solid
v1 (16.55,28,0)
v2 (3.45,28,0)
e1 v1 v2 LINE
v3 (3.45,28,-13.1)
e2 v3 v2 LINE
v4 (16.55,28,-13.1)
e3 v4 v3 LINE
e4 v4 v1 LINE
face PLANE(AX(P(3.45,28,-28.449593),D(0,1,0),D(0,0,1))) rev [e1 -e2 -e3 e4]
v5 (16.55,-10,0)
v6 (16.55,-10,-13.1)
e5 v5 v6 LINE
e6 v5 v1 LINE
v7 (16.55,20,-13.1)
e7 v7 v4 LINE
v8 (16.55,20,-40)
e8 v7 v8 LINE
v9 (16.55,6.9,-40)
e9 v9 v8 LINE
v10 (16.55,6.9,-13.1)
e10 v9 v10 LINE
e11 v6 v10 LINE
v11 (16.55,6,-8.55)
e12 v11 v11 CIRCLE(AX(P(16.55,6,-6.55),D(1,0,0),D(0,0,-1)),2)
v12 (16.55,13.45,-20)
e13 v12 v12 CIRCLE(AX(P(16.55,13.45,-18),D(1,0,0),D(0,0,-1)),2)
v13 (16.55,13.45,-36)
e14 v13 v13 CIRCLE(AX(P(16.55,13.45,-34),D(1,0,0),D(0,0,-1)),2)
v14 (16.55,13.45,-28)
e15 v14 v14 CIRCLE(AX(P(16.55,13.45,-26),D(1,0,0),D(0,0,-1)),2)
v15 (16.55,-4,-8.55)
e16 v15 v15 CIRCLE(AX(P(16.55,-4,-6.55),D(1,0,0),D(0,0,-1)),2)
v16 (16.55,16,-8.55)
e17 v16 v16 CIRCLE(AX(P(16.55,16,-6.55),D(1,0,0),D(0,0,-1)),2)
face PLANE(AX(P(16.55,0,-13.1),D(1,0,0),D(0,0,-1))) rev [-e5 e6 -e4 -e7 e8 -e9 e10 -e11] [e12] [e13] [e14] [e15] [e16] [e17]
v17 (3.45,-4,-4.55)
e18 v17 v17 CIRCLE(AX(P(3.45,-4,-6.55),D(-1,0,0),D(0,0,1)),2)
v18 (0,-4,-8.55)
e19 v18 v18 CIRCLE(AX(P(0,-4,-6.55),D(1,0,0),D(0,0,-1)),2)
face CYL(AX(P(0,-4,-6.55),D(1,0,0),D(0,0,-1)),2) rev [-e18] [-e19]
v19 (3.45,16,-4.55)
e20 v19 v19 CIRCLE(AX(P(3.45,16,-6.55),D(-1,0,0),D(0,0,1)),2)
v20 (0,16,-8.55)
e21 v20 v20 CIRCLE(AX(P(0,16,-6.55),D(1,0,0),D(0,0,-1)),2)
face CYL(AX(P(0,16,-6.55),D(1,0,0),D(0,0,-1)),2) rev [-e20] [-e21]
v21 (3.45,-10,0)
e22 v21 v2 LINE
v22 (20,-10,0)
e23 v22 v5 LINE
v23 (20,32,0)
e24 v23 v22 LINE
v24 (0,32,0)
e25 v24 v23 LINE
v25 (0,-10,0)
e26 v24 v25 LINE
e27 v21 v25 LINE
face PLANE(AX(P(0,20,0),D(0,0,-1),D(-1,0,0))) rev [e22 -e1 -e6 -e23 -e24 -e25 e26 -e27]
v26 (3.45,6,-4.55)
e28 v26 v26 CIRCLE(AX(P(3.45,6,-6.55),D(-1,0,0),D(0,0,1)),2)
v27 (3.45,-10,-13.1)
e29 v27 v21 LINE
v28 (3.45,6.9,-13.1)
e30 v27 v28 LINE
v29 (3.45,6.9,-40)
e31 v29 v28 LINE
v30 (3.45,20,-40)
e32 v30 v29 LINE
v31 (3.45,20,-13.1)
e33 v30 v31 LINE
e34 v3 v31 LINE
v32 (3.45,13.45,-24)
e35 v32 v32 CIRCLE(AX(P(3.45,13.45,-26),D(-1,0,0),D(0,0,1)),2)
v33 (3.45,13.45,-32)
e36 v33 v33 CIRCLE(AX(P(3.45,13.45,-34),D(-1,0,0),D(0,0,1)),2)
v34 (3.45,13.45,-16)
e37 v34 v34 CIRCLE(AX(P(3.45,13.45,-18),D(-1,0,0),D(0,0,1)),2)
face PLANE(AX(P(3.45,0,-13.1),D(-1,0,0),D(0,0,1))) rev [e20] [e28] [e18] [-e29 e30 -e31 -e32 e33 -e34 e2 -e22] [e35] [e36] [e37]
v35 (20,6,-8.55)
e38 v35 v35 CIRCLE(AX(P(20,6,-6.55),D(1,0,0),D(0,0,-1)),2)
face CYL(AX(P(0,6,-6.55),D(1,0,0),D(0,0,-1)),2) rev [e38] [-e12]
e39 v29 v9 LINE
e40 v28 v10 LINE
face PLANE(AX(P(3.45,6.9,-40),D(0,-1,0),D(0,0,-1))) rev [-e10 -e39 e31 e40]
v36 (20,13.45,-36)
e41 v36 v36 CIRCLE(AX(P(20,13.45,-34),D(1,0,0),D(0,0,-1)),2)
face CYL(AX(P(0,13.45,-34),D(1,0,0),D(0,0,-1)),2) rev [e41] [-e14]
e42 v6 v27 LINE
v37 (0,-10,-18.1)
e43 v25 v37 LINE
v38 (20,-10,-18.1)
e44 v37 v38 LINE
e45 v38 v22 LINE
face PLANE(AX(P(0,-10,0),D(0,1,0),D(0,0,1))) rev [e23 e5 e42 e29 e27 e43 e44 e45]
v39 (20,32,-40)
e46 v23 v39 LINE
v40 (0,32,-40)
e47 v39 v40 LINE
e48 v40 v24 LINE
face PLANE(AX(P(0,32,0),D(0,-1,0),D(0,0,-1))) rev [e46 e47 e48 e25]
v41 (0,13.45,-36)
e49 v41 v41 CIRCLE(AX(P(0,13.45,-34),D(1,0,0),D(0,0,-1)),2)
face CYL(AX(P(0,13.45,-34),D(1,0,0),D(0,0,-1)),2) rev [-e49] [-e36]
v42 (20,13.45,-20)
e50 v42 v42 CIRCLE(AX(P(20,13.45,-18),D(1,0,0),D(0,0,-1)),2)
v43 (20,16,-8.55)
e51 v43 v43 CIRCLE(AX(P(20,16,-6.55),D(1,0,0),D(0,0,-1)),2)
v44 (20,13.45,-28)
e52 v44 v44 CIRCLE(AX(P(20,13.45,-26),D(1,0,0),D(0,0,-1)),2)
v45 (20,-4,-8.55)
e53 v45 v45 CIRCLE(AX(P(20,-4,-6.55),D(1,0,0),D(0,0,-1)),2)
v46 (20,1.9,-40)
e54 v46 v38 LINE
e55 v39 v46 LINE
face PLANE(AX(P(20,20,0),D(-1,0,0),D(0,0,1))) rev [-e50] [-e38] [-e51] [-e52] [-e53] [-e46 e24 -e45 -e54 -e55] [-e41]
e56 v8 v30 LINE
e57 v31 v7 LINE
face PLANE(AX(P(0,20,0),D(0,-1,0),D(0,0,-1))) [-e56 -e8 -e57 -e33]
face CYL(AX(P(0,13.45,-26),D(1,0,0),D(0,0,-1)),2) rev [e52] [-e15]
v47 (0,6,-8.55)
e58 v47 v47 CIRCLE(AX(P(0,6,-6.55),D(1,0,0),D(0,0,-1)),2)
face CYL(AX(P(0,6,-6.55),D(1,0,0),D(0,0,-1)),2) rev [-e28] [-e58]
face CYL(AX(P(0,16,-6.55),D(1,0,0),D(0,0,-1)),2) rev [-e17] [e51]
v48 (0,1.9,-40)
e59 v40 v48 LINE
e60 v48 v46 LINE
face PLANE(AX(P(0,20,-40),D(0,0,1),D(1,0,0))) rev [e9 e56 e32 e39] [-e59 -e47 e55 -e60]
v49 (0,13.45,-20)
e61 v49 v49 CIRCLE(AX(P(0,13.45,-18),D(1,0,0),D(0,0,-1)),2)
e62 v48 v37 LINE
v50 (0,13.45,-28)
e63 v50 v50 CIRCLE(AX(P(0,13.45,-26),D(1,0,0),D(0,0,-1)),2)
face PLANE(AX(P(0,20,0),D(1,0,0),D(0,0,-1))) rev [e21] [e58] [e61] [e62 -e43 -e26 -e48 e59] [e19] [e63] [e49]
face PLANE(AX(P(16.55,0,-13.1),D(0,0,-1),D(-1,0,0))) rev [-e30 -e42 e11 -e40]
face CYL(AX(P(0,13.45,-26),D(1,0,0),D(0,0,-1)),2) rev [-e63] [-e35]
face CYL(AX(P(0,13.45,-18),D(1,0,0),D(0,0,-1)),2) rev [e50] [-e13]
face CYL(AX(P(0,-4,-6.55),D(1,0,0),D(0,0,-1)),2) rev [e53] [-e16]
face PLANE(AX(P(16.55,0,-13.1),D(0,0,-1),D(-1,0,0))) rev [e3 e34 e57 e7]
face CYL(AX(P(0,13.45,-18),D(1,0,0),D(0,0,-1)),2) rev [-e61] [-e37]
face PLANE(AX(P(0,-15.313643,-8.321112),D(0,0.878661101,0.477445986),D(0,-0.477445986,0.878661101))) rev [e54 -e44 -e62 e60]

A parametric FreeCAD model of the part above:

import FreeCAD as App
import Part
import Sketcher

V = App.Vector

doc = App.newDocument("Part")
params = doc.addObject("Spreadsheet::Sheet", "Params")
for row, (alias, value) in enumerate([
    ("sketch1_width", "20 mm"),
    ("sketch1_height", "40 mm"),
    ("pad1_length", "20 mm"),
    ("sketch2_width", "13.1 mm"),
    ("sketch3_width", "13.1 mm"),
    ("sketch4_width", "20 mm"),
    ("sketch4_height", "40 mm"),
    ("sketch4_width2", "13.1 mm"),
    ("pad2_length", "10 mm"),
    ("sketch5_width", "20 mm"),
    ("sketch5_height", "40 mm"),
    ("pad3_length", "12 mm"),
    ("sketch6_height", "8 mm"),
    ("sketch6_width", "13.1 mm"),
    ("pocket3_length", "13.1 mm"),
    ("sketch7_diameter", "4 mm"),
    ("sketch8_diameter", "4 mm"),
    ("sketch9_width", "11.9 mm"),
    ("sketch9_height", "21.9 mm"),
], start=1):
    params.set(f"A{row}", alias)
    params.set(f"B{row}", "=" + value)
    params.setAlias(f"B{row}", alias)

body = doc.addObject("PartDesign::Body", "Body")

# Sketch on XZ plane
sketch1 = doc.addObject("Sketcher::SketchObject", "Sketch")
body.addObject(sketch1)
sketch1.AttachmentSupport = (doc.XZ_Plane, [""])
sketch1.MapMode = "FlatFace"
sketch1.addGeometry([
    Part.LineSegment(V(0, -40, 0), V(0, 0, 0)),
    Part.LineSegment(V(0, 0, 0), V(20, 0, 0)),
    Part.LineSegment(V(20, 0, 0), V(20, -40, 0)),
    Part.LineSegment(V(20, -40, 0), V(0, -40, 0)),
], False)
sketch1.addConstraint([
    Sketcher.Constraint("Coincident", 0, 2, 1, 1),
    Sketcher.Constraint("Coincident", 1, 2, 2, 1),
    Sketcher.Constraint("Coincident", 2, 2, 3, 1),
    Sketcher.Constraint("Coincident", 3, 2, 0, 1),
    Sketcher.Constraint("Vertical", 0),
    Sketcher.Constraint("Horizontal", 1),
    Sketcher.Constraint("Vertical", 2),
    Sketcher.Constraint("Horizontal", 3),
    Sketcher.Constraint("Coincident", 0, 2, -1, 1),
    Sketcher.Constraint("DistanceX", 1, 1, 1, 2, 20.0),
    Sketcher.Constraint("DistanceY", 0, 1, 0, 2, 40.0),
])
sketch1.setExpression("Constraints[9]", "Params.sketch1_width")
sketch1.setExpression("Constraints[10]", "Params.sketch1_height")
pad1 = doc.addObject("PartDesign::Pad", "Pad")
body.addObject(pad1)
pad1.Profile = sketch1
pad1.setExpression("Length", "Params.pad1_length")
pad1.Reversed = True

# Sketch on XZ plane
sketch2 = doc.addObject("Sketcher::SketchObject", "Sketch001")
body.addObject(sketch2)
sketch2.AttachmentSupport = (doc.XZ_Plane, [""])
sketch2.MapMode = "FlatFace"
sketch2.AttachmentOffset = App.Placement(V(0, 0, -20), App.Rotation())
sketch2.addGeometry([
    Part.LineSegment(V(3.45, -13.1, 0), V(3.45, 0, 0)),
    Part.LineSegment(V(3.45, 0, 0), V(16.55, 0, 0)),
    Part.LineSegment(V(16.55, 0, 0), V(16.55, -13.1, 0)),
    Part.LineSegment(V(16.55, -13.1, 0), V(3.45, -13.1, 0)),
], False)
sketch2.addConstraint([
    Sketcher.Constraint("Coincident", 0, 2, 1, 1),
    Sketcher.Constraint("Coincident", 1, 2, 2, 1),
    Sketcher.Constraint("Coincident", 2, 2, 3, 1),
    Sketcher.Constraint("Coincident", 3, 2, 0, 1),
    Sketcher.Constraint("Vertical", 0),
    Sketcher.Constraint("Horizontal", 1),
    Sketcher.Constraint("Vertical", 2),
    Sketcher.Constraint("Horizontal", 3),
    Sketcher.Constraint("PointOnObject", 0, 2, -1),
    Sketcher.Constraint("Equal", 3, 0),
    Sketcher.Constraint("DistanceX", 1, 1, 1, 2, 13.1),
    Sketcher.Constraint("DistanceX", -1, 1, 0, 2, 3.45),
])
sketch2.setExpression("Constraints[10]", "Params.sketch2_width")
pocket1 = doc.addObject("PartDesign::Pocket", "Pocket")
body.addObject(pocket1)
pocket1.Profile = sketch2
pocket1.Type = "ThroughAll"
pocket1.Reversed = True

# Sketch on XY plane
sketch3 = doc.addObject("Sketcher::SketchObject", "Sketch002")
body.addObject(sketch3)
sketch3.AttachmentSupport = (doc.XY_Plane, [""])
sketch3.MapMode = "FlatFace"
sketch3.AttachmentOffset = App.Placement(V(0, 0, -13.1), App.Rotation())
sketch3.addGeometry([
    Part.LineSegment(V(3.45, 20, 0), V(3.45, 6.9, 0)),
    Part.LineSegment(V(3.45, 6.9, 0), V(16.55, 6.9, 0)),
    Part.LineSegment(V(16.55, 6.9, 0), V(16.55, 20, 0)),
    Part.LineSegment(V(16.55, 20, 0), V(3.45, 20, 0)),
], False)
sketch3.addConstraint([
    Sketcher.Constraint("Coincident", 0, 2, 1, 1),
    Sketcher.Constraint("Coincident", 1, 2, 2, 1),
    Sketcher.Constraint("Coincident", 2, 2, 3, 1),
    Sketcher.Constraint("Coincident", 3, 2, 0, 1),
    Sketcher.Constraint("Vertical", 0),
    Sketcher.Constraint("Horizontal", 1),
    Sketcher.Constraint("Vertical", 2),
    Sketcher.Constraint("Horizontal", 3),
    Sketcher.Constraint("Equal", 3, 0),
    Sketcher.Constraint("DistanceX", 1, 1, 1, 2, 13.1),
    Sketcher.Constraint("DistanceY", -1, 1, 2, 2, 20.0),
    Sketcher.Constraint("DistanceX", -1, 1, 0, 2, 3.45),
])
sketch3.setExpression("Constraints[9]", "Params.sketch3_width")
pocket2 = doc.addObject("PartDesign::Pocket", "Pocket001")
body.addObject(pocket2)
pocket2.Profile = sketch3
pocket2.Type = "ThroughAll"

# Sketch on XZ plane
sketch4 = doc.addObject("Sketcher::SketchObject", "Sketch003")
body.addObject(sketch4)
sketch4.AttachmentSupport = (doc.XZ_Plane, [""])
sketch4.MapMode = "FlatFace"
sketch4.addGeometry([
    Part.LineSegment(V(3.45, -13.1, 0), V(3.45, 0, 0)),  # 0
    Part.LineSegment(V(3.45, 0, 0), V(0, 0, 0)),  # 1
    Part.LineSegment(V(0, 0, 0), V(0, -40, 0)),  # 2
    Part.LineSegment(V(0, -40, 0), V(20, -40, 0)),  # 3
    Part.LineSegment(V(20, -40, 0), V(20, 0, 0)),  # 4
    Part.LineSegment(V(20, 0, 0), V(16.55, 0, 0)),  # 5
    Part.LineSegment(V(16.55, 0, 0), V(16.55, -13.1, 0)),  # 6
    Part.LineSegment(V(16.55, -13.1, 0), V(3.45, -13.1, 0)),  # 7
], False)
sketch4.addConstraint([
    Sketcher.Constraint("Coincident", 0, 2, 1, 1),
    Sketcher.Constraint("Coincident", 1, 2, 2, 1),
    Sketcher.Constraint("Coincident", 2, 2, 3, 1),
    Sketcher.Constraint("Coincident", 3, 2, 4, 1),
    Sketcher.Constraint("Coincident", 4, 2, 5, 1),
    Sketcher.Constraint("Coincident", 5, 2, 6, 1),
    Sketcher.Constraint("Coincident", 6, 2, 7, 1),
    Sketcher.Constraint("Coincident", 7, 2, 0, 1),
    Sketcher.Constraint("Vertical", 0),
    Sketcher.Constraint("Horizontal", 1),
    Sketcher.Constraint("Vertical", 2),
    Sketcher.Constraint("Horizontal", 3),
    Sketcher.Constraint("Vertical", 4),
    Sketcher.Constraint("Horizontal", 5),
    Sketcher.Constraint("Vertical", 6),
    Sketcher.Constraint("Horizontal", 7),
    Sketcher.Constraint("Coincident", 1, 2, -1, 1),
    Sketcher.Constraint("PointOnObject", 4, 2, -1),
    Sketcher.Constraint("Equal", 1, 5),
    Sketcher.Constraint("Equal", 7, 0),
    Sketcher.Constraint("DistanceX", 3, 1, 3, 2, 20.0),
    Sketcher.Constraint("DistanceY", 2, 2, 2, 1, 40.0),
    Sketcher.Constraint("DistanceX", 7, 2, 7, 1, 13.1),
])
sketch4.setExpression("Constraints[20]", "Params.sketch4_width")
sketch4.setExpression("Constraints[21]", "Params.sketch4_height")
sketch4.setExpression("Constraints[22]", "Params.sketch4_width2")
pad2 = doc.addObject("PartDesign::Pad", "Pad001")
body.addObject(pad2)
pad2.Profile = sketch4
pad2.setExpression("Length", "Params.pad2_length")

# Sketch on XZ plane
sketch5 = doc.addObject("Sketcher::SketchObject", "Sketch004")
body.addObject(sketch5)
sketch5.AttachmentSupport = (doc.XZ_Plane, [""])
sketch5.MapMode = "FlatFace"
sketch5.AttachmentOffset = App.Placement(V(0, 0, -20), App.Rotation())
sketch5.addGeometry([
    Part.LineSegment(V(0, -40, 0), V(0, 0, 0)),
    Part.LineSegment(V(0, 0, 0), V(20, 0, 0)),
    Part.LineSegment(V(20, 0, 0), V(20, -40, 0)),
    Part.LineSegment(V(20, -40, 0), V(0, -40, 0)),
], False)
sketch5.addConstraint([
    Sketcher.Constraint("Coincident", 0, 2, 1, 1),
    Sketcher.Constraint("Coincident", 1, 2, 2, 1),
    Sketcher.Constraint("Coincident", 2, 2, 3, 1),
    Sketcher.Constraint("Coincident", 3, 2, 0, 1),
    Sketcher.Constraint("Vertical", 0),
    Sketcher.Constraint("Horizontal", 1),
    Sketcher.Constraint("Vertical", 2),
    Sketcher.Constraint("Horizontal", 3),
    Sketcher.Constraint("Coincident", 0, 2, -1, 1),
    Sketcher.Constraint("DistanceX", 1, 1, 1, 2, 20.0),
    Sketcher.Constraint("DistanceY", 0, 1, 0, 2, 40.0),
])
sketch5.setExpression("Constraints[9]", "Params.sketch5_width")
sketch5.setExpression("Constraints[10]", "Params.sketch5_height")
pad3 = doc.addObject("PartDesign::Pad", "Pad002")
body.addObject(pad3)
pad3.Profile = sketch5
pad3.setExpression("Length", "Params.pad3_length")
pad3.Reversed = True

# Sketch on XY plane
sketch6 = doc.addObject("Sketcher::SketchObject", "Sketch005")
body.addObject(sketch6)
sketch6.AttachmentSupport = (doc.XY_Plane, [""])
sketch6.MapMode = "FlatFace"
sketch6.addGeometry([
    Part.LineSegment(V(3.45, 28, 0), V(3.45, 20, 0)),
    Part.LineSegment(V(3.45, 20, 0), V(16.55, 20, 0)),
    Part.LineSegment(V(16.55, 20, 0), V(16.55, 28, 0)),
    Part.LineSegment(V(16.55, 28, 0), V(3.45, 28, 0)),
], False)
sketch6.addConstraint([
    Sketcher.Constraint("Coincident", 0, 2, 1, 1),
    Sketcher.Constraint("Coincident", 1, 2, 2, 1),
    Sketcher.Constraint("Coincident", 2, 2, 3, 1),
    Sketcher.Constraint("Coincident", 3, 2, 0, 1),
    Sketcher.Constraint("Vertical", 0),
    Sketcher.Constraint("Horizontal", 1),
    Sketcher.Constraint("Vertical", 2),
    Sketcher.Constraint("Horizontal", 3),
    Sketcher.Constraint("DistanceY", 0, 2, 0, 1, 8.0),
    Sketcher.Constraint("DistanceX", 1, 1, 1, 2, 13.1),
    Sketcher.Constraint("DistanceY", -1, 1, 0, 2, 20.0),
    Sketcher.Constraint("DistanceX", -1, 1, 0, 2, 3.45),
])
sketch6.setExpression("Constraints[8]", "Params.sketch6_height")
sketch6.setExpression("Constraints[9]", "Params.sketch6_width")
pocket3 = doc.addObject("PartDesign::Pocket", "Pocket002")
body.addObject(pocket3)
pocket3.Profile = sketch6
pocket3.setExpression("Length", "Params.pocket3_length")

# Sketch on YZ plane
sketch7 = doc.addObject("Sketcher::SketchObject", "Sketch006")
body.addObject(sketch7)
sketch7.AttachmentSupport = (doc.YZ_Plane, [""])
sketch7.MapMode = "FlatFace"
sketch7.AttachmentOffset = App.Placement(V(0, 0, 20), App.Rotation())
sketch7.addGeometry([
    Part.Circle(V(-4, -6.55, 0), V(0, 0, 1), 2),
    Part.Circle(V(16, -6.55, 0), V(0, 0, 1), 2),
    Part.Circle(V(6, -6.55, 0), V(0, 0, 1), 2),
], False)
sketch7.addConstraint([
    Sketcher.Constraint("Equal", 0, 1),
    Sketcher.Constraint("Equal", 1, 2),
    Sketcher.Constraint("Horizontal", 0, 3, 1, 3),
    Sketcher.Constraint("Horizontal", 1, 3, 2, 3),
    Sketcher.Constraint("Diameter", 0, 4.0),
    Sketcher.Constraint("DistanceX", 0, 3, -1, 1, 4.0),
    Sketcher.Constraint("DistanceX", -1, 1, 1, 3, 16.0),
    Sketcher.Constraint("DistanceX", -1, 1, 2, 3, 6.0),
    Sketcher.Constraint("DistanceY", 0, 3, -1, 1, 6.55),
])
sketch7.setExpression("Constraints[4]", "Params.sketch7_diameter")
pocket4 = doc.addObject("PartDesign::Pocket", "Pocket003")
body.addObject(pocket4)
pocket4.Profile = sketch7
pocket4.Type = "ThroughAll"

# Sketch on YZ plane
sketch8 = doc.addObject("Sketcher::SketchObject", "Sketch007")
body.addObject(sketch8)
sketch8.AttachmentSupport = (doc.YZ_Plane, [""])
sketch8.MapMode = "FlatFace"
sketch8.AttachmentOffset = App.Placement(V(0, 0, 3.45), App.Rotation())
sketch8.addGeometry([
    Part.Circle(V(13.45, -34, 0), V(0, 0, 1), 2),
    Part.Circle(V(13.45, -26, 0), V(0, 0, 1), 2),
    Part.Circle(V(13.45, -18, 0), V(0, 0, 1), 2),
], False)
sketch8.addConstraint([
    Sketcher.Constraint("Equal", 0, 1),
    Sketcher.Constraint("Equal", 1, 2),
    Sketcher.Constraint("Vertical", 0, 3, 1, 3),
    Sketcher.Constraint("Vertical", 1, 3, 2, 3),
    Sketcher.Constraint("Diameter", 0, 4.0),
    Sketcher.Constraint("DistanceY", 0, 3, -1, 1, 34.0),
    Sketcher.Constraint("DistanceY", 1, 3, -1, 1, 26.0),
    Sketcher.Constraint("DistanceY", 2, 3, -1, 1, 18.0),
    Sketcher.Constraint("DistanceX", -1, 1, 0, 3, 13.45),
])
sketch8.setExpression("Constraints[4]", "Params.sketch8_diameter")
pocket5 = doc.addObject("PartDesign::Pocket", "Pocket004")
body.addObject(pocket5)
pocket5.Profile = sketch8
pocket5.Type = "ThroughAll"
pocket5.Midplane = True

# Sketch on YZ plane
sketch9 = doc.addObject("Sketcher::SketchObject", "Sketch008")
body.addObject(sketch9)
sketch9.AttachmentSupport = (doc.YZ_Plane, [""])
sketch9.MapMode = "FlatFace"
sketch9.AttachmentOffset = App.Placement(V(0, 0, 20), App.Rotation())
sketch9.addGeometry([
    Part.LineSegment(V(-10, -18.1, 0), V(-10, -40, 0)),
    Part.LineSegment(V(-10, -40, 0), V(1.9, -40, 0)),
    Part.LineSegment(V(1.9, -40, 0), V(-10, -18.1, 0)),
], False)
sketch9.addConstraint([
    Sketcher.Constraint("Coincident", 0, 2, 1, 1),
    Sketcher.Constraint("Coincident", 1, 2, 2, 1),
    Sketcher.Constraint("Coincident", 2, 2, 0, 1),
    Sketcher.Constraint("Vertical", 0),
    Sketcher.Constraint("Horizontal", 1),
    Sketcher.Constraint("DistanceX", 1, 1, 1, 2, 11.9),
    Sketcher.Constraint("DistanceY", 0, 2, 0, 1, 21.9),
    Sketcher.Constraint("DistanceX", 0, 2, -1, 1, 10.0),
    Sketcher.Constraint("DistanceY", 0, 2, -1, 1, 40.0),
])
sketch9.setExpression("Constraints[5]", "Params.sketch9_width")
sketch9.setExpression("Constraints[6]", "Params.sketch9_height")
pocket6 = doc.addObject("PartDesign::Pocket", "Pocket005")
body.addObject(pocket6)
pocket6.Profile = sketch9
pocket6.Type = "ThroughAll"

doc.recompute()
